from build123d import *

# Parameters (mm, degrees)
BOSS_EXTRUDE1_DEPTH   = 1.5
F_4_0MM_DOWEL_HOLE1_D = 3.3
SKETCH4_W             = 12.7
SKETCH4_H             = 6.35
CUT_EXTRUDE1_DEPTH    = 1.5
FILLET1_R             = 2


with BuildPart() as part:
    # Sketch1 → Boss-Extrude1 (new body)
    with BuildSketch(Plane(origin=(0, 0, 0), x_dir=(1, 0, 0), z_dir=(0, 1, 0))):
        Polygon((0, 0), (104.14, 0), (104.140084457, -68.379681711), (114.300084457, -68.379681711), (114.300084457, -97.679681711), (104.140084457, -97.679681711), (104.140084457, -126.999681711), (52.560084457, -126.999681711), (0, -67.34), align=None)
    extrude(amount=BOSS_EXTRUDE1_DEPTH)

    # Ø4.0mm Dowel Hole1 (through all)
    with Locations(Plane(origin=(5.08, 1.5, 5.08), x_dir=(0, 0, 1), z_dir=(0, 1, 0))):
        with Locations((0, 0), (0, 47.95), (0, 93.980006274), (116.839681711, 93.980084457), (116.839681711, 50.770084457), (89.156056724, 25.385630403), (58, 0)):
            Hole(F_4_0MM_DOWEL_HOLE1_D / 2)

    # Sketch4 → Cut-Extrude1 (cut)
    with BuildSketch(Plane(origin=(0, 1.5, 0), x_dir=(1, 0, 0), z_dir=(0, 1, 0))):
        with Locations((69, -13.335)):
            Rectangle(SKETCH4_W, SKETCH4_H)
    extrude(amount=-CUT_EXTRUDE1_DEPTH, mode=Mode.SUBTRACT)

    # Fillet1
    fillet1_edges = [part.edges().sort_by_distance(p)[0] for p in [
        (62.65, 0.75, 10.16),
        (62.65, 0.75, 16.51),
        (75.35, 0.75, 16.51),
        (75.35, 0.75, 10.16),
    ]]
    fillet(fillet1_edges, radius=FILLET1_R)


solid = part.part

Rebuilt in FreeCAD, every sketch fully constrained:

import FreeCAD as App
import Part
import Sketcher

V = App.Vector
Q = App.Units.Quantity


def edges_at(feature, points):
    """Names of the edges that pass closest to the given points."""
    edges = feature.Shape.Edges
    near = lambda p: min(range(len(edges)), key=lambda i: edges[i].distToShape(Part.Vertex(*p))[0])
    return sorted({f"Edge{near(p) + 1}" for p in points})

doc = App.newDocument("Part")
body = doc.addObject("PartDesign::Body", "Body")

sketch1 = doc.addObject("Sketcher::SketchObject", "Sketch")
body.addObject(sketch1)
sketch1.AttachmentSupport = (doc.XZ_Plane, [""])
sketch1.MapMode = "FlatFace"
sketch1.addGeometry([
    Part.LineSegment(V(104, 0, 0), V(0, 0, 0)),
    Part.LineSegment(V(0, 0, 0), V(0, 67, 0)),
    Part.LineSegment(V(0, 67, 0), V(53, 127, 0)),
    Part.LineSegment(V(53, 127, 0), V(104, 127, 0)),
    Part.LineSegment(V(104, 127, 0), V(104, 98, 0)),
    Part.LineSegment(V(104, 98, 0), V(114, 98, 0)),
    Part.LineSegment(V(114, 98, 0), V(114, 68, 0)),
    Part.LineSegment(V(114, 68, 0), V(104, 68, 0)),
    Part.LineSegment(V(104, 68, 0), V(104, 0, 0)),
], False)
sketch1.addConstraint([
    Sketcher.Constraint("Coincident", 0, 2, 1, 1),
    Sketcher.Constraint("Coincident", 1, 2, 2, 1),
    Sketcher.Constraint("Coincident", 2, 2, 3, 1),
    Sketcher.Constraint("Coincident", 3, 2, 4, 1),
    Sketcher.Constraint("Coincident", 4, 2, 5, 1),
    Sketcher.Constraint("Coincident", 5, 2, 6, 1),
    Sketcher.Constraint("Coincident", 6, 2, 7, 1),
    Sketcher.Constraint("Coincident", 7, 2, 8, 1),
    Sketcher.Constraint("Coincident", 8, 2, 0, 1),
    Sketcher.Constraint("Horizontal", 0),
    Sketcher.Constraint("Vertical", 1),
    Sketcher.Constraint("Horizontal", 3),
    Sketcher.Constraint("Vertical", 4),
    Sketcher.Constraint("Horizontal", 5),
    Sketcher.Constraint("Vertical", 6),
    Sketcher.Constraint("Horizontal", 7),
    Sketcher.Constraint("Coincident", 0, 2, -1, 1),
    Sketcher.Constraint("Vertical", 4, 2, 7, 2),
    Sketcher.Constraint("DistanceY", 6, 2, 6, 1, Q("29.3 mm")),
    Sketcher.Constraint("DistanceX", 0, 2, 0, 1, Q("104.14 mm")),
    Sketcher.Constraint("DistanceX", 3, 1, 3, 2, Q("51.58 mm")),
    Sketcher.Constraint("DistanceX", 5, 1, 5, 2, Q("10.16 mm")),
    Sketcher.Constraint("DistanceY", 1, 1, 1, 2, Q("67.34 mm")),
    Sketcher.Constraint("DistanceY", 4, 2, 4, 1, Q("29.32 mm")),
    Sketcher.Constraint("Angle", 2, Q("48.62 deg")),
    Sketcher.Constraint("Distance", 2, Q("79.51 mm")),
])
pad1 = doc.addObject("PartDesign::Pad", "Pad")
body.addObject(pad1)
pad1.Profile = sketch1
pad1.Length = 1.5
pad1.Reversed = True

sketch2 = doc.addObject("Sketcher::SketchObject", "Sketch001")
body.addObject(sketch2)
sketch2.AttachmentSupport = (doc.XZ_Plane, [""])
sketch2.MapMode = "FlatFace"
sketch2.AttachmentOffset = App.Placement(V(0, 0, -1.5), App.Rotation())
sketch2.addGeometry([
    Part.Circle(V(5.1, 5.1, 0), V(0, 0, 1), 1.6),
    Part.Circle(V(53, 5.1, 0), V(0, 0, 1), 1.6),
    Part.Circle(V(99.1, 5.1, 0), V(0, 0, 1), 1.6),
    Part.Circle(V(99.1, 121.9, 0), V(0, 0, 1), 1.6),
    Part.Circle(V(55.9, 121.9, 0), V(0, 0, 1), 1.6),
    Part.Circle(V(30.5, 94.2, 0), V(0, 0, 1), 1.6),
    Part.Circle(V(5.1, 63.1, 0), V(0, 0, 1), 1.6),
], False)
sketch2.addConstraint([
    Sketcher.Constraint("Equal", 0, 1),
    Sketcher.Constraint("Equal", 1, 2),
    Sketcher.Constraint("Equal", 2, 3),
    Sketcher.Constraint("Equal", 3, 4),
    Sketcher.Constraint("Equal", 4, 5),
    Sketcher.Constraint("Equal", 5, 6),
    Sketcher.Constraint("Horizontal", 0, 3, 1, 3),
    Sketcher.Constraint("Horizontal", 1, 3, 2, 3),
    Sketcher.Constraint("Horizontal", 3, 3, 4, 3),
    Sketcher.Constraint("Vertical", 0, 3, 6, 3),
    Sketcher.Constraint("Diameter", 0, Q("3.3 mm")),
    Sketcher.Constraint("DistanceY", 0, 3, 6, 3, Q("58 mm")),
    Sketcher.Constraint("DistanceX", -1, 1, 0, 3, Q("5.08 mm")),
    Sketcher.Constraint("DistanceY", -1, 1, 0, 3, Q("5.08 mm")),
    Sketcher.Constraint("DistanceX", -1, 1, 1, 3, Q("53.03 mm")),
    Sketcher.Constraint("DistanceX", 4, 3, 3, 3, Q("43.21 mm")),
    Sketcher.Constraint("DistanceY", -1, 1, 3, 3, Q("121.919682 mm")),
    Sketcher.Constraint("DistanceX", -1, 1, 5, 3, Q("30.46563 mm")),
    Sketcher.Constraint("DistanceX", 4, 3, 2, 3, Q("43.209922 mm")),
    Sketcher.Constraint("DistanceX", -1, 1, 2, 3, Q("99.060006 mm")),
    Sketcher.Constraint("DistanceY", -1, 1, 5, 3, Q("94.236057 mm")),
])
doc.recompute()
hole = doc.addObject("PartDesign::Hole", "Hole")
body.addObject(hole)
hole.Profile = sketch2
hole.ThreadType = "None"
hole.Diameter = 3.3
hole.DepthType = "ThroughAll"
hole.Reversed = True

sketch3 = doc.addObject("Sketcher::SketchObject", "Sketch002")
body.addObject(sketch3)
sketch3.AttachmentSupport = (doc.XZ_Plane, [""])
sketch3.MapMode = "FlatFace"
sketch3.AttachmentOffset = App.Placement(V(0, 0, -1.5), App.Rotation())
sketch3.addGeometry([
    Part.LineSegment(V(63, 10, 0), V(63, 17, 0)),
    Part.LineSegment(V(63, 17, 0), V(75, 17, 0)),
    Part.LineSegment(V(75, 17, 0), V(75, 10, 0)),
    Part.LineSegment(V(75, 10, 0), V(63, 10, 0)),
], False)
sketch3.addConstraint([
    Sketcher.Constraint("Coincident", 0, 2, 1, 1),
    Sketcher.Constraint("Coincident", 1, 2, 2, 1),
    Sketcher.Constraint("Coincident", 2, 2, 3, 1),
    Sketcher.Constraint("Coincident", 3, 2, 0, 1),
    Sketcher.Constraint("Vertical", 0),
    Sketcher.Constraint("Horizontal", 1),
    Sketcher.Constraint("Vertical", 2),
    Sketcher.Constraint("Horizontal", 3),
    Sketcher.Constraint("DistanceX", 1, 1, 1, 2, Q("12.7 mm")),
    Sketcher.Constraint("DistanceY", 0, 1, 0, 2, Q("6.35 mm")),
    Sketcher.Constraint("DistanceX", -1, 1, 0, 2, Q("62.65 mm")),
    Sketcher.Constraint("DistanceY", -1, 1, 0, 2, Q("16.51 mm")),
])
pocket1 = doc.addObject("PartDesign::Pocket", "Pocket")
body.addObject(pocket1)
pocket1.Profile = sketch3
pocket1.Length = 1.5
pocket1.Reversed = True
doc.recompute()

fillet = doc.addObject("PartDesign::Fillet", "Fillet")
body.addObject(fillet)
fillet.Base = (pocket1, edges_at(pocket1, [
    (62.65, 0.75, 10.16),
    (62.65, 0.75, 16.51),
    (75.35, 0.75, 16.51),
    (75.35, 0.75, 10.16),
]))
fillet.Radius = 2

doc.recompute()
